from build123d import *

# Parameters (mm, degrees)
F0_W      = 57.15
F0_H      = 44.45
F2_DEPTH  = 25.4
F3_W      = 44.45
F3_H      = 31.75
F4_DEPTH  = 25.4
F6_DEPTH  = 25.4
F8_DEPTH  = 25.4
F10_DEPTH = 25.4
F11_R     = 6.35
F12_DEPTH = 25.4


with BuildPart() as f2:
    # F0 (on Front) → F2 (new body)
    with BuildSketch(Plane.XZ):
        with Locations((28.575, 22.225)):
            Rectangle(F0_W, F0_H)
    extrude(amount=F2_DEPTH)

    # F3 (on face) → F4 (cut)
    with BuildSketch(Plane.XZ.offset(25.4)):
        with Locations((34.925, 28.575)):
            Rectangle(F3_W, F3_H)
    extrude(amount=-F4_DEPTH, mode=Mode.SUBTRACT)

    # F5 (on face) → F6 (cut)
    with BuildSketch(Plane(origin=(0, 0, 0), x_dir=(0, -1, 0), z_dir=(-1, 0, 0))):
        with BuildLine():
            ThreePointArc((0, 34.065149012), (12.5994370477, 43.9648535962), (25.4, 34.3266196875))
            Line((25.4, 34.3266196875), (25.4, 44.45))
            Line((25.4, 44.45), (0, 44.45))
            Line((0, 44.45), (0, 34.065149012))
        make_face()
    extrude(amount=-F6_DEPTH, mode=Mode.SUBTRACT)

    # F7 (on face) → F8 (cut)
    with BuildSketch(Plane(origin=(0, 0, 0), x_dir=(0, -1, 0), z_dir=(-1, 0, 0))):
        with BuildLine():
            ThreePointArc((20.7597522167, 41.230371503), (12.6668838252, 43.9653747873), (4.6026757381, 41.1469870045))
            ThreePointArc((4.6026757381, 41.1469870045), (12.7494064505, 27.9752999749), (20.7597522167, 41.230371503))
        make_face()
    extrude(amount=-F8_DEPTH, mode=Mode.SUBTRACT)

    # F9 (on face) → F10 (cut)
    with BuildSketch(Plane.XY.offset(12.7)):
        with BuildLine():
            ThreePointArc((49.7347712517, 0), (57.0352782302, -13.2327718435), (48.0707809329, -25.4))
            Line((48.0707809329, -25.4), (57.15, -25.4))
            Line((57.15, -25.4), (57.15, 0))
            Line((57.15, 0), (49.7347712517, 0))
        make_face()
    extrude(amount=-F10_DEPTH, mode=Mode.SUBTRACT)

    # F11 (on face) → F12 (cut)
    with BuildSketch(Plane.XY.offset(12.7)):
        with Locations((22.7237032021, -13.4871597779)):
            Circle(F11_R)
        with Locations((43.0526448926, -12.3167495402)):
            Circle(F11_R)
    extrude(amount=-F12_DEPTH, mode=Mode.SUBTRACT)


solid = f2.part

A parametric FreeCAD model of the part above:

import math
import FreeCAD as App
import Part
import Sketcher
Q = App.Units.Quantity


def add_polygon(sketch, points):
    """Adds a closed chain of lines whose ends are joined by coincident constraints."""
    first, n = sketch.GeometryCount, len(points)
    for a, b in zip(points, points[1:] + points[:1]):
        sketch.addGeometry(Part.LineSegment(App.Vector(*a, 0), App.Vector(*b, 0)), False)
    for i in range(n):
        sketch.addConstraint(Sketcher.Constraint("Coincident", first + i, 2, first + (i + 1) % n, 1))

doc = App.newDocument("Part")
body = doc.addObject("PartDesign::Body", "Body")

# Sketch on XZ plane
sketch1 = body.newObject("Sketcher::SketchObject", "Sketch")
sketch1.AttachmentSupport = (doc.getObject("XZ_Plane"), [""])
sketch1.MapMode = "FlatFace"
add_polygon(sketch1, [(0, 44), (0, 0), (57, 0), (57, 44)])  # lines 0-3
sketch1.addConstraint(Sketcher.Constraint("Vertical", 0))
sketch1.addConstraint(Sketcher.Constraint("Horizontal", 1))
sketch1.addConstraint(Sketcher.Constraint("Vertical", 2))
sketch1.addConstraint(Sketcher.Constraint("Horizontal", 3))
sketch1.addConstraint(Sketcher.Constraint("Coincident", 0, 2, -1, 1))
sketch1.addConstraint(Sketcher.Constraint("DistanceX", 1, 1, 1, 2, Q("2.25 in")))
sketch1.addConstraint(Sketcher.Constraint("DistanceY", 0, 2, 0, 1, Q("1.75 in")))
pad1 = body.newObject("PartDesign::Pad", "Pad")
pad1.Profile = sketch1
pad1.Length = Q("1 in")

# Sketch on XZ plane
sketch2 = body.newObject("Sketcher::SketchObject", "Sketch001")
sketch2.AttachmentSupport = (doc.getObject("XZ_Plane"), [""])
sketch2.MapMode = "FlatFace"
sketch2.AttachmentOffset = App.Placement(App.Vector(0, 0, 1 * 25.4), App.Rotation())
add_polygon(sketch2, [(13, 44), (13, 13), (57, 13), (57, 44)])  # lines 0-3
sketch2.addConstraint(Sketcher.Constraint("Vertical", 0))
sketch2.addConstraint(Sketcher.Constraint("Horizontal", 1))
sketch2.addConstraint(Sketcher.Constraint("Vertical", 2))
sketch2.addConstraint(Sketcher.Constraint("Horizontal", 3))
sketch2.addConstraint(Sketcher.Constraint("DistanceX", 1, 1, 1, 2, Q("1.75 in")))
sketch2.addConstraint(Sketcher.Constraint("DistanceY", 0, 2, 0, 1, Q("1.25 in")))
sketch2.addConstraint(Sketcher.Constraint("DistanceX", -1, 1, 0, 2, Q("0.5 in")))
sketch2.addConstraint(Sketcher.Constraint("DistanceY", -1, 1, 0, 2, Q("0.5 in")))
pocket1 = body.newObject("PartDesign::Pocket", "Pocket")
pocket1.Profile = sketch2
pocket1.Length = Q("1 in")

# Sketch on YZ plane
sketch3 = body.newObject("Sketcher::SketchObject", "Sketch002")
sketch3.AttachmentSupport = (doc.getObject("YZ_Plane"), [""])
sketch3.MapMode = "FlatFace"
sketch3.addGeometry(Part.ArcOfCircle(Part.Circle(App.Vector(-13, 31, 0), App.Vector(0, 0, 1), 13), math.radians(14), math.radians(165)), False)
sketch3.addGeometry(Part.LineSegment(App.Vector(-25, 34, 0), App.Vector(-25, 44, 0)), False)
sketch3.addGeometry(Part.LineSegment(App.Vector(-25, 44, 0), App.Vector(0, 44, 0)), False)
sketch3.addGeometry(Part.LineSegment(App.Vector(0, 44, 0), App.Vector(0, 34, 0)), False)
sketch3.addConstraint(Sketcher.Constraint("Coincident", 0, 2, 1, 1))
sketch3.addConstraint(Sketcher.Constraint("Coincident", 1, 2, 2, 1))
sketch3.addConstraint(Sketcher.Constraint("Coincident", 2, 2, 3, 1))
sketch3.addConstraint(Sketcher.Constraint("Coincident", 3, 2, 0, 1))
sketch3.addConstraint(Sketcher.Constraint("Vertical", 1))
sketch3.addConstraint(Sketcher.Constraint("Horizontal", 2))
sketch3.addConstraint(Sketcher.Constraint("Vertical", 3))
sketch3.addConstraint(Sketcher.Constraint("PointOnObject", 2, 2, -2))
sketch3.addConstraint(Sketcher.Constraint("DistanceX", 2, 1, 2, 2, Q("1 in")))
sketch3.addConstraint(Sketcher.Constraint("DistanceY", -1, 1, 1, 2, Q("1.75 in")))
sketch3.addConstraint(Sketcher.Constraint("Radius", 0, 13.140402))
sketch3.addConstraint(Sketcher.Constraint("DistanceY", 1, 1, 1, 2, 10.12338))
sketch3.addConstraint(Sketcher.Constraint("DistanceY", 3, 2, 3, 1, 10.384851))
pocket2 = body.newObject("PartDesign::Pocket", "Pocket001")
pocket2.Profile = sketch3
pocket2.Length = Q("1 in")
pocket2.Reversed = True

# Sketch on YZ plane
sketch4 = body.newObject("Sketcher::SketchObject", "Sketch003")
sketch4.AttachmentSupport = (doc.getObject("YZ_Plane"), [""])
sketch4.MapMode = "FlatFace"
sketch4.addGeometry(Part.ArcOfCircle(Part.Circle(App.Vector(-13, 31, 0), App.Vector(0, 0, 1), 13), math.radians(52), math.radians(128)), False)
sketch4.addGeometry(Part.ArcOfCircle(Part.Circle(App.Vector(-13, 37, 0), App.Vector(0, 0, 1), 9), math.radians(153), math.radians(387)), False)
sketch4.addConstraint(Sketcher.Constraint("Coincident", 0, 1, 1, 2))
sketch4.addConstraint(Sketcher.Constraint("Coincident", 1, 1, 0, 2))
sketch4.addConstraint(Sketcher.Constraint("Radius", 0, 13.140402))
sketch4.addConstraint(Sketcher.Constraint("Radius", 1, 9.076382))
sketch4.addConstraint(Sketcher.Constraint("DistanceX", 0, 3, -1, 1, 12.734699))
sketch4.addConstraint(Sketcher.Constraint("DistanceY", -1, 1, 1, 3, 37.051562))
sketch4.addConstraint(Sketcher.Constraint("DistanceY", -1, 1, 1, 1, 41.230372))
sketch4.addConstraint(Sketcher.Constraint("DistanceX", 1, 3, 0, 1, 8.099889))
pocket3 = body.newObject("PartDesign::Pocket", "Pocket002")
pocket3.Profile = sketch4
pocket3.Length = Q("1 in")
pocket3.Reversed = True

# Sketch on XY plane
sketch5 = body.newObject("Sketcher::SketchObject", "Sketch004")
sketch5.AttachmentSupport = (doc.getObject("XY_Plane"), [""])
sketch5.MapMode = "FlatFace"
sketch5.AttachmentOffset = App.Placement(App.Vector(0, 0, 0.5 * 25.4), App.Rotation())
sketch5.addGeometry(Part.ArcOfCircle(Part.Circle(App.Vector(43, -12, 0), App.Vector(0, 0, 1), 14), math.radians(-69), math.radians(62)), False)
sketch5.addGeometry(Part.LineSegment(App.Vector(48, -25, 0), App.Vector(57, -25, 0)), False)
sketch5.addGeometry(Part.LineSegment(App.Vector(57, -25, 0), App.Vector(57, 0, 0)), False)
sketch5.addGeometry(Part.LineSegment(App.Vector(57, 0, 0), App.Vector(50, 0, 0)), False)
sketch5.addConstraint(Sketcher.Constraint("Coincident", 0, 1, 1, 1))
sketch5.addConstraint(Sketcher.Constraint("Coincident", 1, 2, 2, 1))
sketch5.addConstraint(Sketcher.Constraint("Coincident", 2, 2, 3, 1))
sketch5.addConstraint(Sketcher.Constraint("Coincident", 3, 2, 0, 2))
sketch5.addConstraint(Sketcher.Constraint("Horizontal", 1))
sketch5.addConstraint(Sketcher.Constraint("Vertical", 2))
sketch5.addConstraint(Sketcher.Constraint("Horizontal", 3))
sketch5.addConstraint(Sketcher.Constraint("PointOnObject", 2, 2, -1))
sketch5.addConstraint(Sketcher.Constraint("DistanceY", 2, 1, 2, 2, Q("1 in")))
sketch5.addConstraint(Sketcher.Constraint("DistanceX", -1, 1, 1, 2, Q("2.25 in")))
sketch5.addConstraint(Sketcher.Constraint("Radius", 0, 14.012606))
sketch5.addConstraint(Sketcher.Constraint("DistanceX", 1, 1, 1, 2, 9.079219))
sketch5.addConstraint(Sketcher.Constraint("DistanceX", 3, 2, 3, 1, 7.415229))
pocket4 = body.newObject("PartDesign::Pocket", "Pocket003")
pocket4.Profile = sketch5
pocket4.Length = Q("1 in")

# Sketch on XY plane
sketch6 = body.newObject("Sketcher::SketchObject", "Sketch005")
sketch6.AttachmentSupport = (doc.getObject("XY_Plane"), [""])
sketch6.MapMode = "FlatFace"
sketch6.AttachmentOffset = App.Placement(App.Vector(0, 0, 0.5 * 25.4), App.Rotation())
sketch6.addGeometry(Part.Circle(App.Vector(23, -13, 0), App.Vector(0, 0, 1), 6), False)
sketch6.addGeometry(Part.Circle(App.Vector(43, -12, 0), App.Vector(0, 0, 1), 6), False)
sketch6.addConstraint(Sketcher.Constraint("Equal", 0, 1))
sketch6.addConstraint(Sketcher.Constraint("Diameter", 0, Q("0.5 in")))
sketch6.addConstraint(Sketcher.Constraint("DistanceY", 0, 3, -1, 1, 13.48716))
sketch6.addConstraint(Sketcher.Constraint("DistanceY", 1, 3, -1, 1, 12.31675))
sketch6.addConstraint(Sketcher.Constraint("DistanceX", 0, 3, 1, 3, 20.328942))
sketch6.addConstraint(Sketcher.Constraint("DistanceX", -1, 1, 0, 3, 22.723703))
pocket5 = body.newObject("PartDesign::Pocket", "Pocket004")
pocket5.Profile = sketch6
pocket5.Length = Q("1 in")

doc.recompute()
